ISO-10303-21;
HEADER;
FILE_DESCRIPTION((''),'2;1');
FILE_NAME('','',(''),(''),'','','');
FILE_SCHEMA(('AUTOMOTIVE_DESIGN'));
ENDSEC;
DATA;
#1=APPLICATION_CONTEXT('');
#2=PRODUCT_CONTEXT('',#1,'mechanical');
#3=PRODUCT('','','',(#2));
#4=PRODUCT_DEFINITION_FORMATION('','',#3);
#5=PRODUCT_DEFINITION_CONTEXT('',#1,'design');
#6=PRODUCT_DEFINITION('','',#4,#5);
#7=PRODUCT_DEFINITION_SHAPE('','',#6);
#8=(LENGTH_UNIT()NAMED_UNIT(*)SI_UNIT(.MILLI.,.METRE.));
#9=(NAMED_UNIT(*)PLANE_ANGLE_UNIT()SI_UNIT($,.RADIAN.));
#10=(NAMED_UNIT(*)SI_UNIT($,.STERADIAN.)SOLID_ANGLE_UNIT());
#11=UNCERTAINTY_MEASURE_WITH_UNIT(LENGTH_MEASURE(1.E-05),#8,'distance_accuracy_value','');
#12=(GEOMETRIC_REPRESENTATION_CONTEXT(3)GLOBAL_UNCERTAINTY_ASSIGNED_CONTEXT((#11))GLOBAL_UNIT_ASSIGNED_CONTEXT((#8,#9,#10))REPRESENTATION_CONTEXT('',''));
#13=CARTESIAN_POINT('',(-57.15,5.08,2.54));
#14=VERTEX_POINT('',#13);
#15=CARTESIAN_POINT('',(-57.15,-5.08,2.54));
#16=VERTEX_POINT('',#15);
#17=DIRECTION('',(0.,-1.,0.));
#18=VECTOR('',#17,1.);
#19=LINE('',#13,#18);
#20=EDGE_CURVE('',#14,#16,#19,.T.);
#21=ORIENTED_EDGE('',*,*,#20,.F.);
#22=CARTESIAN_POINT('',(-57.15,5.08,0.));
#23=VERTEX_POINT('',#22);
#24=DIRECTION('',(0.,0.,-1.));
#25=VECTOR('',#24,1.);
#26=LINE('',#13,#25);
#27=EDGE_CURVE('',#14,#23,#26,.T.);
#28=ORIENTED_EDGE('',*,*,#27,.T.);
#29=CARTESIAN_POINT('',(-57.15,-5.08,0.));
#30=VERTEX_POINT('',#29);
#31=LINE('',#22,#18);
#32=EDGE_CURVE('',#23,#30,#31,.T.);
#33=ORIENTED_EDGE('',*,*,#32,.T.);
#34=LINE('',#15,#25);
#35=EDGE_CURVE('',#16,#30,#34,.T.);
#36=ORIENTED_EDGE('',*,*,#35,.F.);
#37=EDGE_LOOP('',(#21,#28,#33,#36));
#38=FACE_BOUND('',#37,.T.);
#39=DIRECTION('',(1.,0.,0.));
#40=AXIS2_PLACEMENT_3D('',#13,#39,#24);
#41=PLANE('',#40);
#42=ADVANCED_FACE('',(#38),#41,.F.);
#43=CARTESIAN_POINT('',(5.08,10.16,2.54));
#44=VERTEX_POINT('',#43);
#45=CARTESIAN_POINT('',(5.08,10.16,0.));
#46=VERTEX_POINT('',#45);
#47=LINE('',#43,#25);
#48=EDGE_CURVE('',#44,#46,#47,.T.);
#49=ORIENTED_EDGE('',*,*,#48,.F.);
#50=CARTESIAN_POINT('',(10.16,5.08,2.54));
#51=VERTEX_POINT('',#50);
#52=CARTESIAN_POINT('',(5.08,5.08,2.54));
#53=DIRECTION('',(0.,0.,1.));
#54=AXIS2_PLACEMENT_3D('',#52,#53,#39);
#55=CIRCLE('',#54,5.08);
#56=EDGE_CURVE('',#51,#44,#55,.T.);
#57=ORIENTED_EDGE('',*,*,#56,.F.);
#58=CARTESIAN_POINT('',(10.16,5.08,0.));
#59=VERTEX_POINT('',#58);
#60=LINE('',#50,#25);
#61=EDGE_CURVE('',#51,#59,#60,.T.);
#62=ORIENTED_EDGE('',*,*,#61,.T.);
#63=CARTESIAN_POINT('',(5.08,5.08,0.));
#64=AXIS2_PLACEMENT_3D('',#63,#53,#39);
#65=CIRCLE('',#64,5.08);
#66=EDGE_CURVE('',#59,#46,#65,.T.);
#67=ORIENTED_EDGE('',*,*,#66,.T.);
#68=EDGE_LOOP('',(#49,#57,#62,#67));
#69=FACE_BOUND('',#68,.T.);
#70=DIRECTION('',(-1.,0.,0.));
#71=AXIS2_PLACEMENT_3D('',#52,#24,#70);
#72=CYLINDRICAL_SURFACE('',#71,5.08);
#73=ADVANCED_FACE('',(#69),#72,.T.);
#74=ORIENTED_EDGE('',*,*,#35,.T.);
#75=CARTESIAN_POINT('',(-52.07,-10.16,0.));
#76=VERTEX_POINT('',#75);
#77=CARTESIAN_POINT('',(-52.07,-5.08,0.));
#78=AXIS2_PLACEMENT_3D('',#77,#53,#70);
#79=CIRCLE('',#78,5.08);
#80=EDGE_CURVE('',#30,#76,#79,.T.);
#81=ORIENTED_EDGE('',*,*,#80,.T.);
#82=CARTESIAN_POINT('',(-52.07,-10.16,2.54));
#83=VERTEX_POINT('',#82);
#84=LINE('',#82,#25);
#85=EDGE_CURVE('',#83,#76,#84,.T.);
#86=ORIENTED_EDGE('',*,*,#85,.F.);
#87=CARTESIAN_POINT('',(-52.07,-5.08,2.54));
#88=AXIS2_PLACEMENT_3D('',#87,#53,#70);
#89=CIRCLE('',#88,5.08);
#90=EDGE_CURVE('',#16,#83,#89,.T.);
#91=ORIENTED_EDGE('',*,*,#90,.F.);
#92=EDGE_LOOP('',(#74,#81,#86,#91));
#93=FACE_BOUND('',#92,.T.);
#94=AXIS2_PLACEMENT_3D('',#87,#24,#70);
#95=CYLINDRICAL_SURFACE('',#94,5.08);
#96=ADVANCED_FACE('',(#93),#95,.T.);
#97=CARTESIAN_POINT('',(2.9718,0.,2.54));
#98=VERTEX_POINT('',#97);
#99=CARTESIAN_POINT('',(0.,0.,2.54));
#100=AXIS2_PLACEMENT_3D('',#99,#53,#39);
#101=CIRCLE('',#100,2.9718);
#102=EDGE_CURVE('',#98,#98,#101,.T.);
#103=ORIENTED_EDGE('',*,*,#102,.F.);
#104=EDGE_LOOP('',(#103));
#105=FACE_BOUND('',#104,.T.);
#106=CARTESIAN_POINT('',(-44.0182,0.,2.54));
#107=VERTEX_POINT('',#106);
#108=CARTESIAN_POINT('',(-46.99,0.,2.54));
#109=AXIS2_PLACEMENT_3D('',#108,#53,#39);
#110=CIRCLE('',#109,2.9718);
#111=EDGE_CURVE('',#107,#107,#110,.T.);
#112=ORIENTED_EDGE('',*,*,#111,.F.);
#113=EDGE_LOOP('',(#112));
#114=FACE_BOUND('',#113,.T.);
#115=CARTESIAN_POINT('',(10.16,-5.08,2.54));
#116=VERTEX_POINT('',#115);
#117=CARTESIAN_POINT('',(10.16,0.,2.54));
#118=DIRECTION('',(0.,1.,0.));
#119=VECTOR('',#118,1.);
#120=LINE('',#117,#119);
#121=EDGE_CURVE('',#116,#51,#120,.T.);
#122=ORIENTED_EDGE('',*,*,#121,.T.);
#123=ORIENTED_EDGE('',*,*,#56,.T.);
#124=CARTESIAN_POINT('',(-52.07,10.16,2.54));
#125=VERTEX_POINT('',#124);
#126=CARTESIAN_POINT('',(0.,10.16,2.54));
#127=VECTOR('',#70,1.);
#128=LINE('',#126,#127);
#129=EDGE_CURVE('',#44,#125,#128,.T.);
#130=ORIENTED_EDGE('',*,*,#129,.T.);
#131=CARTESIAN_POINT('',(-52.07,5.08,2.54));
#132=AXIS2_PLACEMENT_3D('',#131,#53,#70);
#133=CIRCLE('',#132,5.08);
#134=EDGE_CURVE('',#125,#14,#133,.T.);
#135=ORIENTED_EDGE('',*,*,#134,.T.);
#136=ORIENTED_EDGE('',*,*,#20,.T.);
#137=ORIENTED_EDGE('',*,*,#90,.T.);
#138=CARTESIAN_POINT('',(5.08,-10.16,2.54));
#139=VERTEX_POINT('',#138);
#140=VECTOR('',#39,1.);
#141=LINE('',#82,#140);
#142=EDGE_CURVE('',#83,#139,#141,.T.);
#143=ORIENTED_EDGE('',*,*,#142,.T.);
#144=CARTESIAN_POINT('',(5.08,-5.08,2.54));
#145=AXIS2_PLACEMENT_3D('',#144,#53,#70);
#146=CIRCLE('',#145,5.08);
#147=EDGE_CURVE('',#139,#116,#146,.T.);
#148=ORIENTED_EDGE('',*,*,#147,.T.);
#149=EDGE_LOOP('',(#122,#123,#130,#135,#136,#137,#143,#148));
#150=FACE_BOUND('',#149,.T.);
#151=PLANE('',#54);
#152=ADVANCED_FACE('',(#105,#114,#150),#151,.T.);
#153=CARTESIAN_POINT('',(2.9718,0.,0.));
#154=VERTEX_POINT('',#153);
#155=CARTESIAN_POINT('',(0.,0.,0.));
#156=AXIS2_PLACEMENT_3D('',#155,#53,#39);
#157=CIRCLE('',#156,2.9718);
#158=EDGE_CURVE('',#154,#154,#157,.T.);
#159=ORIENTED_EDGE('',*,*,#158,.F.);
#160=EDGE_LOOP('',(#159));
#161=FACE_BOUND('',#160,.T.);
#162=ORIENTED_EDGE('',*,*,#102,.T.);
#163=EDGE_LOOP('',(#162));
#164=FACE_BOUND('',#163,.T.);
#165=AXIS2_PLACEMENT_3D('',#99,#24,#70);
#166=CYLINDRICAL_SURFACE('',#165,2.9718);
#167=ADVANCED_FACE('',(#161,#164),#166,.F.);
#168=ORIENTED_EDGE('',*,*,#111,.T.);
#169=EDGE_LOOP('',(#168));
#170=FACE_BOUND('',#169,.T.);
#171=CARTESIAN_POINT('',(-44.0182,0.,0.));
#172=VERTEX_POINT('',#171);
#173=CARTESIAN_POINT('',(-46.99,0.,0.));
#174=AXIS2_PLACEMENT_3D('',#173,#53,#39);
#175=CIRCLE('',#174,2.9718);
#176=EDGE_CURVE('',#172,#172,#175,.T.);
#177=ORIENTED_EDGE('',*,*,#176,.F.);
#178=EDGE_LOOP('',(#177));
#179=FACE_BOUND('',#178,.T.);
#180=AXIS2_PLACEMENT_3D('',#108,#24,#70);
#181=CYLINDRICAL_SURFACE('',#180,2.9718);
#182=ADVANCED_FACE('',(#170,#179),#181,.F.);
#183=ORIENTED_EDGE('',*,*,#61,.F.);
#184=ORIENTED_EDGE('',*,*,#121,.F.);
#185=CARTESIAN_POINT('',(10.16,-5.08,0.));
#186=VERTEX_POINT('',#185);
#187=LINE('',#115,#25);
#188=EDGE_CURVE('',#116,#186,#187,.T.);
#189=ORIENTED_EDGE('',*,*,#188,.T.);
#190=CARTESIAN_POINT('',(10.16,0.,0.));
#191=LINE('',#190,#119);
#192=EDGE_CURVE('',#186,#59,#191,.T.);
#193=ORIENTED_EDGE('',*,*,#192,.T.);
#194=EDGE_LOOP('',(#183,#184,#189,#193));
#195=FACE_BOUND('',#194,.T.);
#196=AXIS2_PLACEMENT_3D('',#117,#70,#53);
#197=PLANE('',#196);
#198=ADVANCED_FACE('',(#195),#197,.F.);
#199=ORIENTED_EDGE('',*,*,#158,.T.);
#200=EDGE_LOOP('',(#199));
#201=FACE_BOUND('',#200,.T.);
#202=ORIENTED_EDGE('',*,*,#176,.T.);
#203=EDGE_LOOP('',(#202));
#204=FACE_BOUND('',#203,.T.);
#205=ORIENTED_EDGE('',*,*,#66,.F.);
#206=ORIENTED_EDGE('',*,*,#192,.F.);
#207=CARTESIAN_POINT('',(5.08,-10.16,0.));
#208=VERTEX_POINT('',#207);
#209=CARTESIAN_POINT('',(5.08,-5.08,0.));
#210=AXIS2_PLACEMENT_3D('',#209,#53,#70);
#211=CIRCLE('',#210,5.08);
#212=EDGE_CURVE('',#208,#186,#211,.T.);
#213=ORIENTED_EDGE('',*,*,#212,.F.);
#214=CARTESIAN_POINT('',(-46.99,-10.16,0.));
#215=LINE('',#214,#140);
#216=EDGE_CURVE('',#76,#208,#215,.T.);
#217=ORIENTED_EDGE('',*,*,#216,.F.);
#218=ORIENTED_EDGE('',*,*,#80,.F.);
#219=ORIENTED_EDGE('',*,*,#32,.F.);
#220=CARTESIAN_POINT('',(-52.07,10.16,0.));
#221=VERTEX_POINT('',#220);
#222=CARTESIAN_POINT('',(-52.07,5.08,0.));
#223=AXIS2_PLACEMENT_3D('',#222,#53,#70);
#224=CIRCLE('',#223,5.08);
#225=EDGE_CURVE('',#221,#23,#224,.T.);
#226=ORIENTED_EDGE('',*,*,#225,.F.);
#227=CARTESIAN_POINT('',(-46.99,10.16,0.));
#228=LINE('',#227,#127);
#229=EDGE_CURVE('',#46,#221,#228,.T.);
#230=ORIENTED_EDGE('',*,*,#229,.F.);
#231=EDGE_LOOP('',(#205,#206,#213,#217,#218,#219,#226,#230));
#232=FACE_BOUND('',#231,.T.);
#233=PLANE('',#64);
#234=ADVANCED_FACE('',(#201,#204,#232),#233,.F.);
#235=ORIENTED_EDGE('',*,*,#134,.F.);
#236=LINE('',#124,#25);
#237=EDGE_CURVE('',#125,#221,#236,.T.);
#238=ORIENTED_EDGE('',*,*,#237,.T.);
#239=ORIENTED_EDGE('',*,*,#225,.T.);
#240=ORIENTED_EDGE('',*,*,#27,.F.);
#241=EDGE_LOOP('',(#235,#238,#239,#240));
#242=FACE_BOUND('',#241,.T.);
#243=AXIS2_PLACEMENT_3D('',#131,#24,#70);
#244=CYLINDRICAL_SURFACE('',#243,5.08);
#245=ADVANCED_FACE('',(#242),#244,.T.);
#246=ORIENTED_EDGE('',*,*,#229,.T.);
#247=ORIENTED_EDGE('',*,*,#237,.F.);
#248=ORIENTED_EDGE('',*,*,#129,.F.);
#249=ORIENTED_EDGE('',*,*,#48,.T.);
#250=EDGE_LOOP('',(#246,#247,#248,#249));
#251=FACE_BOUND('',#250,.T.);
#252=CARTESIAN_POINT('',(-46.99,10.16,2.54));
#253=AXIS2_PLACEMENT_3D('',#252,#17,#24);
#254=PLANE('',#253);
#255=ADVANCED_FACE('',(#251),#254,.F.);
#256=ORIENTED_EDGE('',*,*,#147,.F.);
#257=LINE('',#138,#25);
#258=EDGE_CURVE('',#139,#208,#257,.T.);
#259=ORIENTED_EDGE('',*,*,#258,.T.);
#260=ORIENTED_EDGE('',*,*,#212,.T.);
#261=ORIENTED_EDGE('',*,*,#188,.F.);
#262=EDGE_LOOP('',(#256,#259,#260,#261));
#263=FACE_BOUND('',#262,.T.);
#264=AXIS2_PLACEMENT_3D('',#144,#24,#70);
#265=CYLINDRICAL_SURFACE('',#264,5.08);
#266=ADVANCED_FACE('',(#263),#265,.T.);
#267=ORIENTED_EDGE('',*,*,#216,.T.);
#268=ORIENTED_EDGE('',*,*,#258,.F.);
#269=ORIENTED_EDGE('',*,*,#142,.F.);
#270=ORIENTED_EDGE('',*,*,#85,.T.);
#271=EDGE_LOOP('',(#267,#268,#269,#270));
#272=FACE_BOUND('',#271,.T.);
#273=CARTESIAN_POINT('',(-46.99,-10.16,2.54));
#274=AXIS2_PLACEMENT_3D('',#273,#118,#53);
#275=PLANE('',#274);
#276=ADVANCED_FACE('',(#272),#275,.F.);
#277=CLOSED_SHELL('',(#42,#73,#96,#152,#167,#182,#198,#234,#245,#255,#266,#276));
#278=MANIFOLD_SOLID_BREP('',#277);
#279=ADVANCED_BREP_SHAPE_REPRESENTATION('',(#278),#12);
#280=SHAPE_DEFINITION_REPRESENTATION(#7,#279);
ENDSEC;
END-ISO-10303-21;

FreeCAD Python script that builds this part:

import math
import FreeCAD as App
import Part
import Sketcher
Q = App.Units.Quantity

doc = App.newDocument("Part")
body = doc.addObject("PartDesign::Body", "Body")

# Sketch on XY plane
sketch1 = doc.addObject("Sketcher::SketchObject", "Sketch")
body.addObject(sketch1)
sketch1.AttachmentSupport = (doc.XY_Plane, [""])
sketch1.MapMode = "FlatFace"
sketch1.addGeometry([
    Part.ArcOfCircle(Part.Circle(App.Vector(5.1, 5.1, 0), App.Vector(0, 0, 1), 5.1), math.radians(0), math.radians(90)),  # 0
    Part.LineSegment(App.Vector(5.1, 10.2, 0), App.Vector(-52.1, 10.2, 0)),  # 1
    Part.ArcOfCircle(Part.Circle(App.Vector(-52.1, 5.1, 0), App.Vector(0, 0, 1), 5.1), math.radians(90), math.radians(180)),  # 2
    Part.LineSegment(App.Vector(-57.1, 5.1, 0), App.Vector(-57.1, -5.1, 0)),  # 3
    Part.ArcOfCircle(Part.Circle(App.Vector(-52.1, -5.1, 0), App.Vector(0, 0, 1), 5.1), math.radians(-180), math.radians(-90)),  # 4
    Part.LineSegment(App.Vector(-52.1, -10.2, 0), App.Vector(5.1, -10.2, 0)),  # 5
    Part.ArcOfCircle(Part.Circle(App.Vector(5.1, -5.1, 0), App.Vector(0, 0, 1), 5.1), math.radians(-90), math.radians(0)),  # 6
    Part.LineSegment(App.Vector(10.2, -5.1, 0), App.Vector(10.2, 5.1, 0)),  # 7
    Part.Circle(App.Vector(0, 0, 0), App.Vector(0, 0, 1), 3),  # 8
    Part.Circle(App.Vector(-47, 0, 0), App.Vector(0, 0, 1), 3),  # 9
], False)
sketch1.addConstraint([
    Sketcher.Constraint("Tangent", 0, 2, 1, 1),
    Sketcher.Constraint("Tangent", 1, 2, 2, 1),
    Sketcher.Constraint("Tangent", 2, 2, 3, 1),
    Sketcher.Constraint("Tangent", 3, 2, 4, 1),
    Sketcher.Constraint("Tangent", 4, 2, 5, 1),
    Sketcher.Constraint("Tangent", 5, 2, 6, 1),
    Sketcher.Constraint("Tangent", 6, 2, 7, 1),
    Sketcher.Constraint("Tangent", 7, 2, 0, 1),
    Sketcher.Constraint("Horizontal", 1),
    Sketcher.Constraint("Vertical", 3),
    Sketcher.Constraint("Horizontal", 5),
    Sketcher.Constraint("Vertical", 7),
    Sketcher.Constraint("Coincident", 8, 3, -1, 1),
    Sketcher.Constraint("Equal", 0, 2),
    Sketcher.Constraint("Equal", 2, 4),
    Sketcher.Constraint("Equal", 4, 6),
    Sketcher.Constraint("Equal", 8, 9),
    Sketcher.Constraint("PointOnObject", 9, 3, -1),
    Sketcher.Constraint("Radius", 0, Q("0.2 in")),
    Sketcher.Constraint("Diameter", 8, Q("0.234 in")),
    Sketcher.Constraint("DistanceY", 3, 2, 3, 1, Q("0.4 in")),
    Sketcher.Constraint("DistanceX", 1, 2, 1, 1, Q("2.25 in")),
    Sketcher.Constraint("DistanceX", -1, 1, 0, 3, Q("0.2 in")),
    Sketcher.Constraint("DistanceY", -1, 1, 0, 3, Q("0.2 in")),
    Sketcher.Constraint("DistanceX", 2, 3, 9, 3, Q("0.2 in")),
])
pad1 = doc.addObject("PartDesign::Pad", "Pad")
body.addObject(pad1)
pad1.Profile = sketch1
pad1.Length = Q("0.1 in")

doc.recompute()
